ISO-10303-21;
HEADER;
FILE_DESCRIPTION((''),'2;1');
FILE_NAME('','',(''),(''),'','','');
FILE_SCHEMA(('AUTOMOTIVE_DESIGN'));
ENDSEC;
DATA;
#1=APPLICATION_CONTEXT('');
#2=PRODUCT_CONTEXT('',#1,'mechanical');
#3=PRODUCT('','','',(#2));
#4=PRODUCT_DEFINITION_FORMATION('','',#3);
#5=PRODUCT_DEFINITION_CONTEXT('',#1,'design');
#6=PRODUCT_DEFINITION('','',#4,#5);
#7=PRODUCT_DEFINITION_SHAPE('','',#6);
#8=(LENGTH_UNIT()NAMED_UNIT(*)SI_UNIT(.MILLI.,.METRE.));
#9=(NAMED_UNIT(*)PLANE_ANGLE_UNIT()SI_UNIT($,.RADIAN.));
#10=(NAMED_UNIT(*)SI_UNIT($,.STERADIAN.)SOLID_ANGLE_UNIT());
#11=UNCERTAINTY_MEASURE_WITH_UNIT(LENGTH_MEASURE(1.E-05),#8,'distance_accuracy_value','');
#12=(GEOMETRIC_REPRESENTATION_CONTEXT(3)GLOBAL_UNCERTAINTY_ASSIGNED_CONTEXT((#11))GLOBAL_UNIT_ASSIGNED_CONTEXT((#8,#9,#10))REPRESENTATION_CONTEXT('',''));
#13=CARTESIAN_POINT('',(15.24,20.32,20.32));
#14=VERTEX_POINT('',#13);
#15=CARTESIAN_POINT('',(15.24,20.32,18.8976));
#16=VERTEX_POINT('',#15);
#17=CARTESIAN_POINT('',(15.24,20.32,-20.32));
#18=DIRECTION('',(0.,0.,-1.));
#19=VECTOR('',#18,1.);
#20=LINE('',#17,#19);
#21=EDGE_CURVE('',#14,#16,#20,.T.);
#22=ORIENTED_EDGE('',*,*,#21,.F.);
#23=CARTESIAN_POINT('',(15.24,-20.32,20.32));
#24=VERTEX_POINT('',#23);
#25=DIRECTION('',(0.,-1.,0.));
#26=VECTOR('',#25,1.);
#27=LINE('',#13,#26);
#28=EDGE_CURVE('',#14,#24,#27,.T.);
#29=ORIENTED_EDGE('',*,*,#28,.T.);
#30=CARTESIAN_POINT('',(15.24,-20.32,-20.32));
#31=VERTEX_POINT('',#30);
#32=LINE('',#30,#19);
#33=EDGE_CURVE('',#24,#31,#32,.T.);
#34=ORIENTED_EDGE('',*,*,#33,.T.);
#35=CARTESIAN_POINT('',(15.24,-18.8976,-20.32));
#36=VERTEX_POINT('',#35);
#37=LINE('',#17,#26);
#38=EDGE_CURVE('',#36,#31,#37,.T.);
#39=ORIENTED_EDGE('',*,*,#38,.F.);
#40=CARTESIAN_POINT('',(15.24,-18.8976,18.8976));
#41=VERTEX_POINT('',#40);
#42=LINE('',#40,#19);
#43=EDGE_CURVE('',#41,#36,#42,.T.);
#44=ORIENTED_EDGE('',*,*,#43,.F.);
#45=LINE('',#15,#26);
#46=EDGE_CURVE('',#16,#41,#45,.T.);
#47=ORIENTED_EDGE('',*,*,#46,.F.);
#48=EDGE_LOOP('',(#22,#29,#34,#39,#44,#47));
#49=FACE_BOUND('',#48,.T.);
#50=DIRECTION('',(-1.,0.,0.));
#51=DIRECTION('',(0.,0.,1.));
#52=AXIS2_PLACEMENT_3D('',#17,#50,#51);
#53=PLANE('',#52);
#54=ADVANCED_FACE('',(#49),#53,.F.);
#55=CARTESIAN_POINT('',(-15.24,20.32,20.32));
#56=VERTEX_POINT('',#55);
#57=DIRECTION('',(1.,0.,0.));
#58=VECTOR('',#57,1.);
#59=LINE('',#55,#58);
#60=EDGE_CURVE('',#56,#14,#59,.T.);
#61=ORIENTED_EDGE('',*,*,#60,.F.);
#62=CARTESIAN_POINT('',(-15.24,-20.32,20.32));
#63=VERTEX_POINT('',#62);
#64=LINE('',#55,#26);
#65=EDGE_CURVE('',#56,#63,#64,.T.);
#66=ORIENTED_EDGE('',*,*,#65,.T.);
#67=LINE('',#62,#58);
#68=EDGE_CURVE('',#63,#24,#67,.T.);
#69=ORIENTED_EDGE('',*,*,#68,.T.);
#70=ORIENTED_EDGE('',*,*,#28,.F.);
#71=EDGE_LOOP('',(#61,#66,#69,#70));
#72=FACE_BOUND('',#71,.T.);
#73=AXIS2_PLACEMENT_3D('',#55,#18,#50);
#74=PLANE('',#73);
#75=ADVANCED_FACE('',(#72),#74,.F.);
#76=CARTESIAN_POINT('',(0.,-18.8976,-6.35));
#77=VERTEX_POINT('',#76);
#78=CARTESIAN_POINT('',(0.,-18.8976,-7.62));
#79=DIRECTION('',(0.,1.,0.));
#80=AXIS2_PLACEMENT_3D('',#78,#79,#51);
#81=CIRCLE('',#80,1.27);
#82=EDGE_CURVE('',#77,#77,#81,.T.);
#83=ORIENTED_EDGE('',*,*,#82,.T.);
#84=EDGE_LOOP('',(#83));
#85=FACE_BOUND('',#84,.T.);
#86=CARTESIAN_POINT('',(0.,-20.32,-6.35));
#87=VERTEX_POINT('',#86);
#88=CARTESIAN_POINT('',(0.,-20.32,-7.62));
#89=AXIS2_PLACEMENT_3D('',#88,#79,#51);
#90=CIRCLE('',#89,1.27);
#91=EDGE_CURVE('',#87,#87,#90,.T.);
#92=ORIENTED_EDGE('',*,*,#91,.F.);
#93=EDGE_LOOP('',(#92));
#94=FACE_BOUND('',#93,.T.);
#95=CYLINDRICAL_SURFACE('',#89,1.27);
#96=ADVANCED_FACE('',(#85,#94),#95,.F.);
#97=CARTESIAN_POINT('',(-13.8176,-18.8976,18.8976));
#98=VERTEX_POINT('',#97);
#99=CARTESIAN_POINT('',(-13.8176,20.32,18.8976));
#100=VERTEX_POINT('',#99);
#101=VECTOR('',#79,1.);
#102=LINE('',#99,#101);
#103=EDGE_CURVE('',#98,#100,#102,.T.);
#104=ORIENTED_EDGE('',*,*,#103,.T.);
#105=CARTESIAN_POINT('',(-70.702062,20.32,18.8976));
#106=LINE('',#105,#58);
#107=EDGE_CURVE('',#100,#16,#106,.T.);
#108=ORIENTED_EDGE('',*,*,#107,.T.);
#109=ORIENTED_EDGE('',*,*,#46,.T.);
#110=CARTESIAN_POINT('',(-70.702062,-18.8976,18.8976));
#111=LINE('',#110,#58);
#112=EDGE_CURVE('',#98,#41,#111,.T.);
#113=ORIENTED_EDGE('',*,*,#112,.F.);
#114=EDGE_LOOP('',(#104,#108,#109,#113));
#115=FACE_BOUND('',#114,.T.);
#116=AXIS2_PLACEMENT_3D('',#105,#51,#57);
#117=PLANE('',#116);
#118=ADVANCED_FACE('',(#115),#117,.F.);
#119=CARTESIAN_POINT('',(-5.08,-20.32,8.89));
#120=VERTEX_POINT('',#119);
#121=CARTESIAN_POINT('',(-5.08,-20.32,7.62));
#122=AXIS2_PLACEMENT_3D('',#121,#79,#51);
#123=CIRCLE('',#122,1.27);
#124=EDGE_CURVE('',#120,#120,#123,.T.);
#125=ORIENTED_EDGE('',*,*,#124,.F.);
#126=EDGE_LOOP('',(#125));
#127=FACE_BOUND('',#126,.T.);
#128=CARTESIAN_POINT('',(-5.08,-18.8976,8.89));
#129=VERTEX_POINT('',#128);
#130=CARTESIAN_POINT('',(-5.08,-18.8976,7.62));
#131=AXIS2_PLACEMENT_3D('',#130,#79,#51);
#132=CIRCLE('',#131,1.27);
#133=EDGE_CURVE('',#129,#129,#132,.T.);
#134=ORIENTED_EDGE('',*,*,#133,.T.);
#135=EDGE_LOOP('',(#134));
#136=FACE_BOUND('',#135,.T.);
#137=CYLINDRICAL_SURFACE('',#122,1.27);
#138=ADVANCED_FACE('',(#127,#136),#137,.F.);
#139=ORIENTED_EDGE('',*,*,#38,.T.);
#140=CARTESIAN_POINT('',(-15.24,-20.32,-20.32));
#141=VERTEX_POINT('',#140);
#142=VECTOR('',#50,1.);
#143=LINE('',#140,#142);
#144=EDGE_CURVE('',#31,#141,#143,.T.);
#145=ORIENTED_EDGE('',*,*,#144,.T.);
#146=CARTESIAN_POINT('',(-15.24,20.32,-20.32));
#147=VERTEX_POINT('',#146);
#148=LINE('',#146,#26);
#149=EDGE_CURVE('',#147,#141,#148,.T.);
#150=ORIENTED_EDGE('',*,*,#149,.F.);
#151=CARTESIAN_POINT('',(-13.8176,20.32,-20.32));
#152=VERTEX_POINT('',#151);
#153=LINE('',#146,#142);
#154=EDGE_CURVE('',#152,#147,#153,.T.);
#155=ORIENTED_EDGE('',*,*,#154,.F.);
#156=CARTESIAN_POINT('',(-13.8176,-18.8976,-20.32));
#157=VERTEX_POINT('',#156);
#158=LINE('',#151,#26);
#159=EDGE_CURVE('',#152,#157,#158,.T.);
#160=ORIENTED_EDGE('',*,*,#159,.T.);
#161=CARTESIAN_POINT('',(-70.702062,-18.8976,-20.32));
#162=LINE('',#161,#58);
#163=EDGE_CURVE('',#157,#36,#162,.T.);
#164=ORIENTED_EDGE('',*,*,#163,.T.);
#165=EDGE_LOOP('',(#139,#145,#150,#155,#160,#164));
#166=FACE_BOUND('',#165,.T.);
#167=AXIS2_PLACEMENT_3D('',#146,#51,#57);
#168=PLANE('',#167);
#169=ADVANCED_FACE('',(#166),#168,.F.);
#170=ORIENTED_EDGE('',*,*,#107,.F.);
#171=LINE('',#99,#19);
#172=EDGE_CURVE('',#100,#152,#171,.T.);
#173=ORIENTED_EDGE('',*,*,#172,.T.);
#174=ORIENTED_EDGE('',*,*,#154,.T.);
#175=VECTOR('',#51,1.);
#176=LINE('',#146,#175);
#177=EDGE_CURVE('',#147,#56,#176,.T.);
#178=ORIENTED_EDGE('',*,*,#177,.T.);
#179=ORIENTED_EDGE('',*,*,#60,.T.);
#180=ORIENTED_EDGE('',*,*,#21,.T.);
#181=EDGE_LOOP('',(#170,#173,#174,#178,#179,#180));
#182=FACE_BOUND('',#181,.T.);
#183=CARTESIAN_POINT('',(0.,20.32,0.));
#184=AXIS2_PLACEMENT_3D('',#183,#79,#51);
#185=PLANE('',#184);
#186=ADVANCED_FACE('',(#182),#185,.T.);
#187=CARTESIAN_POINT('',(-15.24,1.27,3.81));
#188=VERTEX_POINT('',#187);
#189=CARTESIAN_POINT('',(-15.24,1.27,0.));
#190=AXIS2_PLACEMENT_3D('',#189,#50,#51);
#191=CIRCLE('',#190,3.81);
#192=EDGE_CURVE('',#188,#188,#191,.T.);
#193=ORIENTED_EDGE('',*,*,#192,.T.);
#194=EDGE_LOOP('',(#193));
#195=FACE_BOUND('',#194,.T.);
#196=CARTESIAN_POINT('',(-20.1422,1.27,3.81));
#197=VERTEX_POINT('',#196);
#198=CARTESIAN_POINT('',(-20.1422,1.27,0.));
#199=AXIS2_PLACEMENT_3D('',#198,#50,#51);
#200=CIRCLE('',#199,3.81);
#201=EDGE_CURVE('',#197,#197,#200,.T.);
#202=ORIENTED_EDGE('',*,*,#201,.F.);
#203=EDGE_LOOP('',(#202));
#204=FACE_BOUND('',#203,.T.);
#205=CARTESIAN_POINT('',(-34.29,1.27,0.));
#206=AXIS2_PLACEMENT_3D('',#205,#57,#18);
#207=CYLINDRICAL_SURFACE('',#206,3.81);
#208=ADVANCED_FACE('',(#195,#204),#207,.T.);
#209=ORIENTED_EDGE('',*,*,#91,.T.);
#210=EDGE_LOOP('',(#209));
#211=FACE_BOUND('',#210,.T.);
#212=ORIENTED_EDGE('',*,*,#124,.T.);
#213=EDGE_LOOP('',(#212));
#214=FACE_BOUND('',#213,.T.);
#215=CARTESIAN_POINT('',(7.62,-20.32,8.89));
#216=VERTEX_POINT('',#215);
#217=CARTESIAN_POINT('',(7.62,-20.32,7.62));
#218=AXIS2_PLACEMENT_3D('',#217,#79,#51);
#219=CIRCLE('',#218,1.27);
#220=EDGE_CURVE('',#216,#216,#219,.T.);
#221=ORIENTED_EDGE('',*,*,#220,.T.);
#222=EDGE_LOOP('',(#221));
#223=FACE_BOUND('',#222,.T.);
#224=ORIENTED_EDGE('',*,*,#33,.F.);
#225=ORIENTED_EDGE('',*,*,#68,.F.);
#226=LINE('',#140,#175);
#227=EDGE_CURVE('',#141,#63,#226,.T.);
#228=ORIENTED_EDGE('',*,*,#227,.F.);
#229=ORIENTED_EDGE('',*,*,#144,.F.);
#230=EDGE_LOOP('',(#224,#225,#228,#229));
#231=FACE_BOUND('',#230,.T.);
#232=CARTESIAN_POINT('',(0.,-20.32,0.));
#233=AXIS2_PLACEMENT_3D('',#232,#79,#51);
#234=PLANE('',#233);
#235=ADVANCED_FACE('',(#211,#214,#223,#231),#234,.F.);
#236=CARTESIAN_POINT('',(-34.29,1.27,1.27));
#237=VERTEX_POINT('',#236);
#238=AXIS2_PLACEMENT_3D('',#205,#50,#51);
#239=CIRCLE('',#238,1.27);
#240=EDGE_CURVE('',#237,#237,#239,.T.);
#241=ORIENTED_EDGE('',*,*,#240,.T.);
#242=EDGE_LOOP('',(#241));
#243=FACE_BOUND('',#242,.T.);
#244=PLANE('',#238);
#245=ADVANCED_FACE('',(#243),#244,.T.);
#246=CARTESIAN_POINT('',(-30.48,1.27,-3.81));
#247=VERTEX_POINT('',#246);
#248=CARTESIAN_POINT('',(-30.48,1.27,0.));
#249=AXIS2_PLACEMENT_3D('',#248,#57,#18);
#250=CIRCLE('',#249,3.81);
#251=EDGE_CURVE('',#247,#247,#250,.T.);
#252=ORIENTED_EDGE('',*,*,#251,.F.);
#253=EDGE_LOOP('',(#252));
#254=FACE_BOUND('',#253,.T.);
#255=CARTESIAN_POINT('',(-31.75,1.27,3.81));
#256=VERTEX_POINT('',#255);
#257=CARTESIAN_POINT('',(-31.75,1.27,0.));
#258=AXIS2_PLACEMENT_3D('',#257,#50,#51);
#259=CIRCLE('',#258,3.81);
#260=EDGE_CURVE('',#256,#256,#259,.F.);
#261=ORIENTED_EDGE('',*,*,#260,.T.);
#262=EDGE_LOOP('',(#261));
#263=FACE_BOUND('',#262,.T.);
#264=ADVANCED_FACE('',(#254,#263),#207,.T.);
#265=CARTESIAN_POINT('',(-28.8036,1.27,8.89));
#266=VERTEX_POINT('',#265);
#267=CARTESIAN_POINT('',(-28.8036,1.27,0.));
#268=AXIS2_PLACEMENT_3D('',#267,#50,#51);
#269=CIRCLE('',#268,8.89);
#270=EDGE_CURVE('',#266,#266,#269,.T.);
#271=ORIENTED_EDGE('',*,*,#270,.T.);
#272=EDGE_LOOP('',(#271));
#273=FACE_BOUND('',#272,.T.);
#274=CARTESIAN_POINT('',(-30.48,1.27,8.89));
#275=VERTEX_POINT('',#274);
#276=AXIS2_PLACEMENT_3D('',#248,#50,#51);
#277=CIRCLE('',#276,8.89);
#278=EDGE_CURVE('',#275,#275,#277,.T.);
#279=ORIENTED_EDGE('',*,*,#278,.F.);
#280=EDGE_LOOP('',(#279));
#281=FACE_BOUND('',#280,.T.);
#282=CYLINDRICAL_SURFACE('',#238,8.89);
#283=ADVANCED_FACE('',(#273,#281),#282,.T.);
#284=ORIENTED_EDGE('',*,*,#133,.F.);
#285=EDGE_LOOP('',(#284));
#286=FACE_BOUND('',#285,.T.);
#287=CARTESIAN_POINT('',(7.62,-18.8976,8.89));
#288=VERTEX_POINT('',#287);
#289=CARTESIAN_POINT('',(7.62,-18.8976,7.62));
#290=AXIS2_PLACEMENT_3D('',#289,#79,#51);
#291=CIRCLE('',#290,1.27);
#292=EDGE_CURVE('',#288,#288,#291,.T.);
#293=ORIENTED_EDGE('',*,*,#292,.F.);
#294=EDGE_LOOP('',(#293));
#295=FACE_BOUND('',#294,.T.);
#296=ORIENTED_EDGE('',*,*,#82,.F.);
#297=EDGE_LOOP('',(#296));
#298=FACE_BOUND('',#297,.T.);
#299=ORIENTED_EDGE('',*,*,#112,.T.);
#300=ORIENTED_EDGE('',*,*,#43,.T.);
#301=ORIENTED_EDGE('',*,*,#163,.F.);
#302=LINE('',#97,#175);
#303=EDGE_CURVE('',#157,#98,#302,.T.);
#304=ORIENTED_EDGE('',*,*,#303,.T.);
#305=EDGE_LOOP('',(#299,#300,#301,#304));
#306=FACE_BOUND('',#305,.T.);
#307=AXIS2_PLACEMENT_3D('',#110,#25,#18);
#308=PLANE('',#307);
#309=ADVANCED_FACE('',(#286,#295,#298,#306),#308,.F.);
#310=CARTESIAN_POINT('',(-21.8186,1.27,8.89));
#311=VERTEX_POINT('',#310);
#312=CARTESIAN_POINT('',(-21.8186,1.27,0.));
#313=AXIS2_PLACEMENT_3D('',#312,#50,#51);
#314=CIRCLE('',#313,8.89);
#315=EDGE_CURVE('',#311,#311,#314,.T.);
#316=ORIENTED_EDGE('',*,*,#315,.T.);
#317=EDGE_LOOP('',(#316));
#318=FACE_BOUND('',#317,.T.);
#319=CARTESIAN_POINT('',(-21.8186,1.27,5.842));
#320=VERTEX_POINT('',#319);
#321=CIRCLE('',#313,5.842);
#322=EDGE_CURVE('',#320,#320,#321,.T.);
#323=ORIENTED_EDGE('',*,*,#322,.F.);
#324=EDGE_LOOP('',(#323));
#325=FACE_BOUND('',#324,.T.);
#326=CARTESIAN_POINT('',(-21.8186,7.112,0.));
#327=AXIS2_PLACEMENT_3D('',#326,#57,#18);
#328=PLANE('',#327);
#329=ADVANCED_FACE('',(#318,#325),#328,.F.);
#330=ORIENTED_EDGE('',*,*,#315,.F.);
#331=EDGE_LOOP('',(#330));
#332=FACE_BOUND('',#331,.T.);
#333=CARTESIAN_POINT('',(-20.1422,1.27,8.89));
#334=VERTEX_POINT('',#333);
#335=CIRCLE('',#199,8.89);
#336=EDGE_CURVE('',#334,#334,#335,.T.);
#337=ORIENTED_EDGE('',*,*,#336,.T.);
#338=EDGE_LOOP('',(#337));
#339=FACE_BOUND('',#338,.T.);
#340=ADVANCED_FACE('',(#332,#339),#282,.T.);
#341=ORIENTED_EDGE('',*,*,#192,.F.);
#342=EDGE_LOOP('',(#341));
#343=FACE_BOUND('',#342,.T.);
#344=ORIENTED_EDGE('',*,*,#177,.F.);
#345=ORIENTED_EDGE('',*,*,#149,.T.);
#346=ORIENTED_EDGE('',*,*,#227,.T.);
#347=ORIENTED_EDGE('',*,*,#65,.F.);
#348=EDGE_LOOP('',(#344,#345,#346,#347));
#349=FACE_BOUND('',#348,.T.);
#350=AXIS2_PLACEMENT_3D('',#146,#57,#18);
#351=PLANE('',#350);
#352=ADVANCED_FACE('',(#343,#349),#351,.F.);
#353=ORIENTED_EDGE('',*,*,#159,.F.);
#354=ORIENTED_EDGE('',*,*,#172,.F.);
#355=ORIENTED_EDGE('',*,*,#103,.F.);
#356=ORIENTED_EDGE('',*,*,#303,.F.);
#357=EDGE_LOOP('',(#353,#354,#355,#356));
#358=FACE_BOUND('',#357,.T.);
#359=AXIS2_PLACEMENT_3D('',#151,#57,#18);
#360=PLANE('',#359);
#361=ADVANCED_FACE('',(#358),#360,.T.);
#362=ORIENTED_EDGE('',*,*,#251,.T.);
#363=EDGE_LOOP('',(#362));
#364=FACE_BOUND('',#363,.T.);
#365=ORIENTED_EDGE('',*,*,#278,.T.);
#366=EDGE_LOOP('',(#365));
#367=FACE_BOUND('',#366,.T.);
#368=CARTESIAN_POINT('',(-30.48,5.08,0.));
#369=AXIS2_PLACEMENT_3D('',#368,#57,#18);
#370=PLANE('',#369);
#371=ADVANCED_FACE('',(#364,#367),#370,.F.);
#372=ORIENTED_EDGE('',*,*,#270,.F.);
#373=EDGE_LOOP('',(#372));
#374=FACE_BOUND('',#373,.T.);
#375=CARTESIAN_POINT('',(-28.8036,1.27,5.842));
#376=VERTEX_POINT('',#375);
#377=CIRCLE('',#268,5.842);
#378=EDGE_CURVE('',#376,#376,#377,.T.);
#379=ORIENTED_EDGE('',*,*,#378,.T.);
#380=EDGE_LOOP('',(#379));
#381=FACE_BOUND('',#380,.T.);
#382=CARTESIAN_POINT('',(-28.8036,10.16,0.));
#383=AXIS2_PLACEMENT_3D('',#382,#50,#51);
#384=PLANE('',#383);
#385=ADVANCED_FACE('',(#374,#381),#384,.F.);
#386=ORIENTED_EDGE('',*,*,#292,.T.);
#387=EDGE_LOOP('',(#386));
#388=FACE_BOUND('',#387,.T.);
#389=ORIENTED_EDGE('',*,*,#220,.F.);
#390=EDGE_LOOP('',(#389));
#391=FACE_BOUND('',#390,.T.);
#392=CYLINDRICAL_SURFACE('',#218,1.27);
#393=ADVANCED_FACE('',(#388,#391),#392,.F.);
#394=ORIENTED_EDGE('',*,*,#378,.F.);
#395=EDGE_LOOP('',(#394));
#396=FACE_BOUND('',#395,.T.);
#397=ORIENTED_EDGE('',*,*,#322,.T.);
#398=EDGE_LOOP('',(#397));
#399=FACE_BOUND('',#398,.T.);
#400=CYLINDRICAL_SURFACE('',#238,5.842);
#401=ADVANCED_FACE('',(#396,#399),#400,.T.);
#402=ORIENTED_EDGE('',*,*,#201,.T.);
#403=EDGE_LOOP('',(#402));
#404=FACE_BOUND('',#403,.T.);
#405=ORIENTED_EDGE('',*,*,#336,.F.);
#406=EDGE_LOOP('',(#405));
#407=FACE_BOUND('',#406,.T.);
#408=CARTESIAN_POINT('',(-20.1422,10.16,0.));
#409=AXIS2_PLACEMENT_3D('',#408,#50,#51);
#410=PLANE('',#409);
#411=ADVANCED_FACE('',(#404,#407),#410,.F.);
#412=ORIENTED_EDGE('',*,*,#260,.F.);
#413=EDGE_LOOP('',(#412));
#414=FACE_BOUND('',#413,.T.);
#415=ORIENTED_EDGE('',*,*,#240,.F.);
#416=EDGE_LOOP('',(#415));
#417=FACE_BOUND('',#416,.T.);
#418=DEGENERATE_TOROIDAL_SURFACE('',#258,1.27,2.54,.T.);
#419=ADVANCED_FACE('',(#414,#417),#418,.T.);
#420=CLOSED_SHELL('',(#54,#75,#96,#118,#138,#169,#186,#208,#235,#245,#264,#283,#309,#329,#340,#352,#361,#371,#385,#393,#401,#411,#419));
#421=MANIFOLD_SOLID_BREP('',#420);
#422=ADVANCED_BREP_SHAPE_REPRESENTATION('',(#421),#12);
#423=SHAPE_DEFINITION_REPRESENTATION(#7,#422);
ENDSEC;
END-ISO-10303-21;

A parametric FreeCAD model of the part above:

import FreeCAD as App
import Part
import Sketcher
from FreeCAD import Vector
Q = App.Units.Quantity


def edges_at(feature, points):
    """Names of the edges that pass closest to the given points."""
    edges = feature.Shape.Edges
    near = lambda p: min(range(len(edges)), key=lambda i: edges[i].distToShape(Part.Vertex(*p))[0])
    return sorted({f"Edge{near(p) + 1}" for p in points})


def add_polygon(sketch, points):
    """Adds a closed chain of lines whose ends are joined by coincident constraints."""
    first, n = sketch.GeometryCount, len(points)
    for a, b in zip(points, points[1:] + points[:1]):
        sketch.addGeometry(Part.LineSegment(App.Vector(*a, 0), App.Vector(*b, 0)), False)
    for i in range(n):
        sketch.addConstraint(Sketcher.Constraint("Coincident", first + i, 2, first + (i + 1) % n, 1))

doc = App.newDocument("Part")
params = doc.addObject("Spreadsheet::Sheet", "Params")
for row, (alias, value) in enumerate([
    ("sketch1_width", "1.2 in"),
    ("sketch1_height", "1.6 in"),
    ("pad1_length", "1.6 in"),
    ("sketch2_width", "1.544 in"),
    ("pocket1_length", "1.144 in"),
    ("sketch3_diameter", "0.1 in"),
    ("sketch4_diameter", "0.3 in"),
    ("pad2_length", "0.75 in"),
    ("sketch5_height", "0.2 in"),
    ("sketch5_height2", "0.12 in"),
    ("sketch5_width", "0.407 in"),
    ("sketch5_width2", "0.066 in"),
    ("revolution_angle", "360 deg"),
    ("fillet_radius", "0.1 in"),
], start=1):
    params.set(f"A{row}", alias)
    params.set(f"B{row}", "=" + value)
    params.setAlias(f"B{row}", alias)

body = doc.addObject("PartDesign::Body", "Body")

sketch1 = body.newObject("Sketcher::SketchObject", "Sketch")
sketch1.AttachmentSupport = (doc.getObject("XZ_Plane"), [""])
sketch1.MapMode = "FlatFace"
add_polygon(sketch1, [(-15.24, -20.32), (-15.24, 20.32), (15.24, 20.32), (15.24, -20.32)])
sketch1.addConstraint([
    Sketcher.Constraint("Vertical", 0),
    Sketcher.Constraint("Horizontal", 1),
    Sketcher.Constraint("Vertical", 2),
    Sketcher.Constraint("Horizontal", 3),
    Sketcher.Constraint("Symmetric", 0, 2, 2, 2, -1, 1),
    Sketcher.Constraint("DistanceX", 1, 1, 1, 2, Q("1.2 in")),
    Sketcher.Constraint("DistanceY", 0, 1, 0, 2, Q("1.6 in")),
])
sketch1.setExpression("Constraints[9]", "Params.sketch1_width")
sketch1.setExpression("Constraints[10]", "Params.sketch1_height")
pad1 = body.newObject("PartDesign::Pad", "Pad")
pad1.Profile = sketch1
pad1.setExpression("Length", "Params.pad1_length")
pad1.Midplane = True

sketch2 = body.newObject("Sketcher::SketchObject", "Sketch001")
sketch2.AttachmentSupport = (doc.getObject("YZ_Plane"), [""])
sketch2.MapMode = "FlatFace"
sketch2.AttachmentOffset = App.Placement(Vector(0, 0, 0.6 * 25.4), App.Rotation())
add_polygon(sketch2, [(20.32, 18.8976), (-18.8976, 18.8976), (-18.8976, -20.32), (20.32, -20.32)])
sketch2.addConstraint([
    Sketcher.Constraint("Horizontal", 0),
    Sketcher.Constraint("Vertical", 1),
    Sketcher.Constraint("Horizontal", 2),
    Sketcher.Constraint("Vertical", 3),
    Sketcher.Constraint("Equal", 2, 1),
    Sketcher.Constraint("DistanceY", 1, 2, -1, 1, Q("0.8 in")),
    Sketcher.Constraint("DistanceX", -1, 1, 2, 2, Q("0.8 in")),
    Sketcher.Constraint("DistanceX", 0, 2, 0, 1, Q("1.544 in")),
])
sketch2.setExpression("Constraints[11]", "Params.sketch2_width")
pocket1 = body.newObject("PartDesign::Pocket", "Pocket")
pocket1.Profile = sketch2
pocket1.setExpression("Length", "Params.pocket1_length")

sketch3 = body.newObject("Sketcher::SketchObject", "Sketch002")
sketch3.AttachmentSupport = (doc.getObject("XZ_Plane"), [""])
sketch3.MapMode = "FlatFace"
sketch3.AttachmentOffset = App.Placement(Vector(0, 0, 0.744 * 25.4), App.Rotation())
sketch3.addGeometry([
    Part.Circle(Vector(-5.08, 7.62, 0), Vector(0, 0, 1), 1.27),
    Part.Circle(Vector(7.62, 7.62, 0), Vector(0, 0, 1), 1.27),
    Part.Circle(Vector(0, -7.62, 0), Vector(0, 0, 1), 1.27),
], False)
sketch3.addConstraint([
    Sketcher.Constraint("Equal", 0, 1),
    Sketcher.Constraint("Equal", 1, 2),
    Sketcher.Constraint("PointOnObject", 2, 3, -2),
    Sketcher.Constraint("Horizontal", 0, 3, 1, 3),
    Sketcher.Constraint("Diameter", 0, Q("0.1 in")),
    Sketcher.Constraint("DistanceX", 0, 3, -1, 1, Q("0.2 in")),
    Sketcher.Constraint("DistanceY", -1, 1, 0, 3, Q("0.3 in")),
    Sketcher.Constraint("DistanceX", -1, 1, 1, 3, Q("0.3 in")),
    Sketcher.Constraint("DistanceY", 2, 3, -1, 1, Q("0.3 in")),
])
sketch3.setExpression("Constraints[4]", "Params.sketch3_diameter")
pocket2 = body.newObject("PartDesign::Pocket", "Pocket001")
pocket2.Profile = sketch3
pocket2.Type = "ThroughAll"
pocket2.Reversed = True

sketch4 = body.newObject("Sketcher::SketchObject", "Sketch003")
sketch4.AttachmentSupport = (doc.getObject("YZ_Plane"), [""])
sketch4.MapMode = "FlatFace"
sketch4.AttachmentOffset = App.Placement(Vector(0, 0, -0.6 * 25.4), App.Rotation())
sketch4.addGeometry(Part.Circle(Vector(1.27, 0, 0), Vector(0, 0, 1), 3.81), False)
sketch4.addConstraint([
    Sketcher.Constraint("PointOnObject", 0, 3, -1),
    Sketcher.Constraint("Diameter", 0, Q("0.3 in")),
    Sketcher.Constraint("DistanceX", -1, 1, 0, 3, Q("0.05 in")),
])
sketch4.setExpression("Constraints[1]", "Params.sketch4_diameter")
pad2 = body.newObject("PartDesign::Pad", "Pad001")
pad2.Profile = sketch4
pad2.setExpression("Length", "Params.pad2_length")
pad2.Reversed = True

sketch5 = body.newObject("Sketcher::SketchObject", "Sketch004")
sketch5.AttachmentSupport = (doc.getObject("XY_Plane"), [""])
sketch5.MapMode = "FlatFace"
add_polygon(sketch5, [(-30.48, 10.16), (-30.48, 5.08), (-20.1422, 5.08), (-20.1422, 10.16), (-21.8186, 10.16), (-21.8186, 7.112), (-28.8036, 7.112), (-28.8036, 10.16)])
sketch5.addGeometry(Part.LineSegment(Vector(-30.48, 1.27, 0), Vector(-20.1422, 1.27, 0)), True)
sketch5.addConstraint([
    Sketcher.Constraint("Vertical", 0),
    Sketcher.Constraint("Horizontal", 1),
    Sketcher.Constraint("Vertical", 2),
    Sketcher.Constraint("Horizontal", 3),
    Sketcher.Constraint("Vertical", 4),
    Sketcher.Constraint("Horizontal", 5),
    Sketcher.Constraint("Vertical", 6),
    Sketcher.Constraint("Horizontal", 7),
    Sketcher.Constraint("Horizontal", 8),
    Sketcher.Constraint("Horizontal", 3, 2, 6, 2),
    Sketcher.Constraint("Vertical", 7, 2, 8, 1),
    Sketcher.Constraint("Vertical", 2, 2, 8, 2),
    Sketcher.Constraint("Equal", 3, 7),
    Sketcher.Constraint("DistanceY", 0, 2, 0, 1, Q("0.2 in")),
    Sketcher.Constraint("DistanceY", 4, 2, 4, 1, Q("0.12 in")),
    Sketcher.Constraint("DistanceX", 0, 2, -1, 1, Q("1.2 in")),
    Sketcher.Constraint("DistanceY", -1, 1, 0, 2, Q("0.2 in")),
    Sketcher.Constraint("DistanceX", 1, 1, 1, 2, Q("0.407 in")),
    Sketcher.Constraint("DistanceX", 3, 2, 3, 1, Q("0.066 in")),
    Sketcher.Constraint("DistanceY", -1, 1, 8, 1, Q("0.05 in")),
])
sketch5.setExpression("Constraints[21]", "Params.sketch5_height")
sketch5.setExpression("Constraints[22]", "Params.sketch5_height2")
sketch5.setExpression("Constraints[25]", "Params.sketch5_width")
sketch5.setExpression("Constraints[26]", "Params.sketch5_width2")
revolution = body.newObject("PartDesign::Revolution", "Revolution")
revolution.Profile = sketch5
revolution.ReferenceAxis = (sketch5, ["Axis0"])
revolution.setExpression("Angle", "Params.revolution_angle")
doc.recompute()

fillet = body.newObject("PartDesign::Fillet", "Fillet")
fillet.Base = (revolution, edges_at(revolution, [(-34.29, 1.27, -3.81)]))
fillet.setExpression("Radius", "Params.fillet_radius")

doc.recompute()
